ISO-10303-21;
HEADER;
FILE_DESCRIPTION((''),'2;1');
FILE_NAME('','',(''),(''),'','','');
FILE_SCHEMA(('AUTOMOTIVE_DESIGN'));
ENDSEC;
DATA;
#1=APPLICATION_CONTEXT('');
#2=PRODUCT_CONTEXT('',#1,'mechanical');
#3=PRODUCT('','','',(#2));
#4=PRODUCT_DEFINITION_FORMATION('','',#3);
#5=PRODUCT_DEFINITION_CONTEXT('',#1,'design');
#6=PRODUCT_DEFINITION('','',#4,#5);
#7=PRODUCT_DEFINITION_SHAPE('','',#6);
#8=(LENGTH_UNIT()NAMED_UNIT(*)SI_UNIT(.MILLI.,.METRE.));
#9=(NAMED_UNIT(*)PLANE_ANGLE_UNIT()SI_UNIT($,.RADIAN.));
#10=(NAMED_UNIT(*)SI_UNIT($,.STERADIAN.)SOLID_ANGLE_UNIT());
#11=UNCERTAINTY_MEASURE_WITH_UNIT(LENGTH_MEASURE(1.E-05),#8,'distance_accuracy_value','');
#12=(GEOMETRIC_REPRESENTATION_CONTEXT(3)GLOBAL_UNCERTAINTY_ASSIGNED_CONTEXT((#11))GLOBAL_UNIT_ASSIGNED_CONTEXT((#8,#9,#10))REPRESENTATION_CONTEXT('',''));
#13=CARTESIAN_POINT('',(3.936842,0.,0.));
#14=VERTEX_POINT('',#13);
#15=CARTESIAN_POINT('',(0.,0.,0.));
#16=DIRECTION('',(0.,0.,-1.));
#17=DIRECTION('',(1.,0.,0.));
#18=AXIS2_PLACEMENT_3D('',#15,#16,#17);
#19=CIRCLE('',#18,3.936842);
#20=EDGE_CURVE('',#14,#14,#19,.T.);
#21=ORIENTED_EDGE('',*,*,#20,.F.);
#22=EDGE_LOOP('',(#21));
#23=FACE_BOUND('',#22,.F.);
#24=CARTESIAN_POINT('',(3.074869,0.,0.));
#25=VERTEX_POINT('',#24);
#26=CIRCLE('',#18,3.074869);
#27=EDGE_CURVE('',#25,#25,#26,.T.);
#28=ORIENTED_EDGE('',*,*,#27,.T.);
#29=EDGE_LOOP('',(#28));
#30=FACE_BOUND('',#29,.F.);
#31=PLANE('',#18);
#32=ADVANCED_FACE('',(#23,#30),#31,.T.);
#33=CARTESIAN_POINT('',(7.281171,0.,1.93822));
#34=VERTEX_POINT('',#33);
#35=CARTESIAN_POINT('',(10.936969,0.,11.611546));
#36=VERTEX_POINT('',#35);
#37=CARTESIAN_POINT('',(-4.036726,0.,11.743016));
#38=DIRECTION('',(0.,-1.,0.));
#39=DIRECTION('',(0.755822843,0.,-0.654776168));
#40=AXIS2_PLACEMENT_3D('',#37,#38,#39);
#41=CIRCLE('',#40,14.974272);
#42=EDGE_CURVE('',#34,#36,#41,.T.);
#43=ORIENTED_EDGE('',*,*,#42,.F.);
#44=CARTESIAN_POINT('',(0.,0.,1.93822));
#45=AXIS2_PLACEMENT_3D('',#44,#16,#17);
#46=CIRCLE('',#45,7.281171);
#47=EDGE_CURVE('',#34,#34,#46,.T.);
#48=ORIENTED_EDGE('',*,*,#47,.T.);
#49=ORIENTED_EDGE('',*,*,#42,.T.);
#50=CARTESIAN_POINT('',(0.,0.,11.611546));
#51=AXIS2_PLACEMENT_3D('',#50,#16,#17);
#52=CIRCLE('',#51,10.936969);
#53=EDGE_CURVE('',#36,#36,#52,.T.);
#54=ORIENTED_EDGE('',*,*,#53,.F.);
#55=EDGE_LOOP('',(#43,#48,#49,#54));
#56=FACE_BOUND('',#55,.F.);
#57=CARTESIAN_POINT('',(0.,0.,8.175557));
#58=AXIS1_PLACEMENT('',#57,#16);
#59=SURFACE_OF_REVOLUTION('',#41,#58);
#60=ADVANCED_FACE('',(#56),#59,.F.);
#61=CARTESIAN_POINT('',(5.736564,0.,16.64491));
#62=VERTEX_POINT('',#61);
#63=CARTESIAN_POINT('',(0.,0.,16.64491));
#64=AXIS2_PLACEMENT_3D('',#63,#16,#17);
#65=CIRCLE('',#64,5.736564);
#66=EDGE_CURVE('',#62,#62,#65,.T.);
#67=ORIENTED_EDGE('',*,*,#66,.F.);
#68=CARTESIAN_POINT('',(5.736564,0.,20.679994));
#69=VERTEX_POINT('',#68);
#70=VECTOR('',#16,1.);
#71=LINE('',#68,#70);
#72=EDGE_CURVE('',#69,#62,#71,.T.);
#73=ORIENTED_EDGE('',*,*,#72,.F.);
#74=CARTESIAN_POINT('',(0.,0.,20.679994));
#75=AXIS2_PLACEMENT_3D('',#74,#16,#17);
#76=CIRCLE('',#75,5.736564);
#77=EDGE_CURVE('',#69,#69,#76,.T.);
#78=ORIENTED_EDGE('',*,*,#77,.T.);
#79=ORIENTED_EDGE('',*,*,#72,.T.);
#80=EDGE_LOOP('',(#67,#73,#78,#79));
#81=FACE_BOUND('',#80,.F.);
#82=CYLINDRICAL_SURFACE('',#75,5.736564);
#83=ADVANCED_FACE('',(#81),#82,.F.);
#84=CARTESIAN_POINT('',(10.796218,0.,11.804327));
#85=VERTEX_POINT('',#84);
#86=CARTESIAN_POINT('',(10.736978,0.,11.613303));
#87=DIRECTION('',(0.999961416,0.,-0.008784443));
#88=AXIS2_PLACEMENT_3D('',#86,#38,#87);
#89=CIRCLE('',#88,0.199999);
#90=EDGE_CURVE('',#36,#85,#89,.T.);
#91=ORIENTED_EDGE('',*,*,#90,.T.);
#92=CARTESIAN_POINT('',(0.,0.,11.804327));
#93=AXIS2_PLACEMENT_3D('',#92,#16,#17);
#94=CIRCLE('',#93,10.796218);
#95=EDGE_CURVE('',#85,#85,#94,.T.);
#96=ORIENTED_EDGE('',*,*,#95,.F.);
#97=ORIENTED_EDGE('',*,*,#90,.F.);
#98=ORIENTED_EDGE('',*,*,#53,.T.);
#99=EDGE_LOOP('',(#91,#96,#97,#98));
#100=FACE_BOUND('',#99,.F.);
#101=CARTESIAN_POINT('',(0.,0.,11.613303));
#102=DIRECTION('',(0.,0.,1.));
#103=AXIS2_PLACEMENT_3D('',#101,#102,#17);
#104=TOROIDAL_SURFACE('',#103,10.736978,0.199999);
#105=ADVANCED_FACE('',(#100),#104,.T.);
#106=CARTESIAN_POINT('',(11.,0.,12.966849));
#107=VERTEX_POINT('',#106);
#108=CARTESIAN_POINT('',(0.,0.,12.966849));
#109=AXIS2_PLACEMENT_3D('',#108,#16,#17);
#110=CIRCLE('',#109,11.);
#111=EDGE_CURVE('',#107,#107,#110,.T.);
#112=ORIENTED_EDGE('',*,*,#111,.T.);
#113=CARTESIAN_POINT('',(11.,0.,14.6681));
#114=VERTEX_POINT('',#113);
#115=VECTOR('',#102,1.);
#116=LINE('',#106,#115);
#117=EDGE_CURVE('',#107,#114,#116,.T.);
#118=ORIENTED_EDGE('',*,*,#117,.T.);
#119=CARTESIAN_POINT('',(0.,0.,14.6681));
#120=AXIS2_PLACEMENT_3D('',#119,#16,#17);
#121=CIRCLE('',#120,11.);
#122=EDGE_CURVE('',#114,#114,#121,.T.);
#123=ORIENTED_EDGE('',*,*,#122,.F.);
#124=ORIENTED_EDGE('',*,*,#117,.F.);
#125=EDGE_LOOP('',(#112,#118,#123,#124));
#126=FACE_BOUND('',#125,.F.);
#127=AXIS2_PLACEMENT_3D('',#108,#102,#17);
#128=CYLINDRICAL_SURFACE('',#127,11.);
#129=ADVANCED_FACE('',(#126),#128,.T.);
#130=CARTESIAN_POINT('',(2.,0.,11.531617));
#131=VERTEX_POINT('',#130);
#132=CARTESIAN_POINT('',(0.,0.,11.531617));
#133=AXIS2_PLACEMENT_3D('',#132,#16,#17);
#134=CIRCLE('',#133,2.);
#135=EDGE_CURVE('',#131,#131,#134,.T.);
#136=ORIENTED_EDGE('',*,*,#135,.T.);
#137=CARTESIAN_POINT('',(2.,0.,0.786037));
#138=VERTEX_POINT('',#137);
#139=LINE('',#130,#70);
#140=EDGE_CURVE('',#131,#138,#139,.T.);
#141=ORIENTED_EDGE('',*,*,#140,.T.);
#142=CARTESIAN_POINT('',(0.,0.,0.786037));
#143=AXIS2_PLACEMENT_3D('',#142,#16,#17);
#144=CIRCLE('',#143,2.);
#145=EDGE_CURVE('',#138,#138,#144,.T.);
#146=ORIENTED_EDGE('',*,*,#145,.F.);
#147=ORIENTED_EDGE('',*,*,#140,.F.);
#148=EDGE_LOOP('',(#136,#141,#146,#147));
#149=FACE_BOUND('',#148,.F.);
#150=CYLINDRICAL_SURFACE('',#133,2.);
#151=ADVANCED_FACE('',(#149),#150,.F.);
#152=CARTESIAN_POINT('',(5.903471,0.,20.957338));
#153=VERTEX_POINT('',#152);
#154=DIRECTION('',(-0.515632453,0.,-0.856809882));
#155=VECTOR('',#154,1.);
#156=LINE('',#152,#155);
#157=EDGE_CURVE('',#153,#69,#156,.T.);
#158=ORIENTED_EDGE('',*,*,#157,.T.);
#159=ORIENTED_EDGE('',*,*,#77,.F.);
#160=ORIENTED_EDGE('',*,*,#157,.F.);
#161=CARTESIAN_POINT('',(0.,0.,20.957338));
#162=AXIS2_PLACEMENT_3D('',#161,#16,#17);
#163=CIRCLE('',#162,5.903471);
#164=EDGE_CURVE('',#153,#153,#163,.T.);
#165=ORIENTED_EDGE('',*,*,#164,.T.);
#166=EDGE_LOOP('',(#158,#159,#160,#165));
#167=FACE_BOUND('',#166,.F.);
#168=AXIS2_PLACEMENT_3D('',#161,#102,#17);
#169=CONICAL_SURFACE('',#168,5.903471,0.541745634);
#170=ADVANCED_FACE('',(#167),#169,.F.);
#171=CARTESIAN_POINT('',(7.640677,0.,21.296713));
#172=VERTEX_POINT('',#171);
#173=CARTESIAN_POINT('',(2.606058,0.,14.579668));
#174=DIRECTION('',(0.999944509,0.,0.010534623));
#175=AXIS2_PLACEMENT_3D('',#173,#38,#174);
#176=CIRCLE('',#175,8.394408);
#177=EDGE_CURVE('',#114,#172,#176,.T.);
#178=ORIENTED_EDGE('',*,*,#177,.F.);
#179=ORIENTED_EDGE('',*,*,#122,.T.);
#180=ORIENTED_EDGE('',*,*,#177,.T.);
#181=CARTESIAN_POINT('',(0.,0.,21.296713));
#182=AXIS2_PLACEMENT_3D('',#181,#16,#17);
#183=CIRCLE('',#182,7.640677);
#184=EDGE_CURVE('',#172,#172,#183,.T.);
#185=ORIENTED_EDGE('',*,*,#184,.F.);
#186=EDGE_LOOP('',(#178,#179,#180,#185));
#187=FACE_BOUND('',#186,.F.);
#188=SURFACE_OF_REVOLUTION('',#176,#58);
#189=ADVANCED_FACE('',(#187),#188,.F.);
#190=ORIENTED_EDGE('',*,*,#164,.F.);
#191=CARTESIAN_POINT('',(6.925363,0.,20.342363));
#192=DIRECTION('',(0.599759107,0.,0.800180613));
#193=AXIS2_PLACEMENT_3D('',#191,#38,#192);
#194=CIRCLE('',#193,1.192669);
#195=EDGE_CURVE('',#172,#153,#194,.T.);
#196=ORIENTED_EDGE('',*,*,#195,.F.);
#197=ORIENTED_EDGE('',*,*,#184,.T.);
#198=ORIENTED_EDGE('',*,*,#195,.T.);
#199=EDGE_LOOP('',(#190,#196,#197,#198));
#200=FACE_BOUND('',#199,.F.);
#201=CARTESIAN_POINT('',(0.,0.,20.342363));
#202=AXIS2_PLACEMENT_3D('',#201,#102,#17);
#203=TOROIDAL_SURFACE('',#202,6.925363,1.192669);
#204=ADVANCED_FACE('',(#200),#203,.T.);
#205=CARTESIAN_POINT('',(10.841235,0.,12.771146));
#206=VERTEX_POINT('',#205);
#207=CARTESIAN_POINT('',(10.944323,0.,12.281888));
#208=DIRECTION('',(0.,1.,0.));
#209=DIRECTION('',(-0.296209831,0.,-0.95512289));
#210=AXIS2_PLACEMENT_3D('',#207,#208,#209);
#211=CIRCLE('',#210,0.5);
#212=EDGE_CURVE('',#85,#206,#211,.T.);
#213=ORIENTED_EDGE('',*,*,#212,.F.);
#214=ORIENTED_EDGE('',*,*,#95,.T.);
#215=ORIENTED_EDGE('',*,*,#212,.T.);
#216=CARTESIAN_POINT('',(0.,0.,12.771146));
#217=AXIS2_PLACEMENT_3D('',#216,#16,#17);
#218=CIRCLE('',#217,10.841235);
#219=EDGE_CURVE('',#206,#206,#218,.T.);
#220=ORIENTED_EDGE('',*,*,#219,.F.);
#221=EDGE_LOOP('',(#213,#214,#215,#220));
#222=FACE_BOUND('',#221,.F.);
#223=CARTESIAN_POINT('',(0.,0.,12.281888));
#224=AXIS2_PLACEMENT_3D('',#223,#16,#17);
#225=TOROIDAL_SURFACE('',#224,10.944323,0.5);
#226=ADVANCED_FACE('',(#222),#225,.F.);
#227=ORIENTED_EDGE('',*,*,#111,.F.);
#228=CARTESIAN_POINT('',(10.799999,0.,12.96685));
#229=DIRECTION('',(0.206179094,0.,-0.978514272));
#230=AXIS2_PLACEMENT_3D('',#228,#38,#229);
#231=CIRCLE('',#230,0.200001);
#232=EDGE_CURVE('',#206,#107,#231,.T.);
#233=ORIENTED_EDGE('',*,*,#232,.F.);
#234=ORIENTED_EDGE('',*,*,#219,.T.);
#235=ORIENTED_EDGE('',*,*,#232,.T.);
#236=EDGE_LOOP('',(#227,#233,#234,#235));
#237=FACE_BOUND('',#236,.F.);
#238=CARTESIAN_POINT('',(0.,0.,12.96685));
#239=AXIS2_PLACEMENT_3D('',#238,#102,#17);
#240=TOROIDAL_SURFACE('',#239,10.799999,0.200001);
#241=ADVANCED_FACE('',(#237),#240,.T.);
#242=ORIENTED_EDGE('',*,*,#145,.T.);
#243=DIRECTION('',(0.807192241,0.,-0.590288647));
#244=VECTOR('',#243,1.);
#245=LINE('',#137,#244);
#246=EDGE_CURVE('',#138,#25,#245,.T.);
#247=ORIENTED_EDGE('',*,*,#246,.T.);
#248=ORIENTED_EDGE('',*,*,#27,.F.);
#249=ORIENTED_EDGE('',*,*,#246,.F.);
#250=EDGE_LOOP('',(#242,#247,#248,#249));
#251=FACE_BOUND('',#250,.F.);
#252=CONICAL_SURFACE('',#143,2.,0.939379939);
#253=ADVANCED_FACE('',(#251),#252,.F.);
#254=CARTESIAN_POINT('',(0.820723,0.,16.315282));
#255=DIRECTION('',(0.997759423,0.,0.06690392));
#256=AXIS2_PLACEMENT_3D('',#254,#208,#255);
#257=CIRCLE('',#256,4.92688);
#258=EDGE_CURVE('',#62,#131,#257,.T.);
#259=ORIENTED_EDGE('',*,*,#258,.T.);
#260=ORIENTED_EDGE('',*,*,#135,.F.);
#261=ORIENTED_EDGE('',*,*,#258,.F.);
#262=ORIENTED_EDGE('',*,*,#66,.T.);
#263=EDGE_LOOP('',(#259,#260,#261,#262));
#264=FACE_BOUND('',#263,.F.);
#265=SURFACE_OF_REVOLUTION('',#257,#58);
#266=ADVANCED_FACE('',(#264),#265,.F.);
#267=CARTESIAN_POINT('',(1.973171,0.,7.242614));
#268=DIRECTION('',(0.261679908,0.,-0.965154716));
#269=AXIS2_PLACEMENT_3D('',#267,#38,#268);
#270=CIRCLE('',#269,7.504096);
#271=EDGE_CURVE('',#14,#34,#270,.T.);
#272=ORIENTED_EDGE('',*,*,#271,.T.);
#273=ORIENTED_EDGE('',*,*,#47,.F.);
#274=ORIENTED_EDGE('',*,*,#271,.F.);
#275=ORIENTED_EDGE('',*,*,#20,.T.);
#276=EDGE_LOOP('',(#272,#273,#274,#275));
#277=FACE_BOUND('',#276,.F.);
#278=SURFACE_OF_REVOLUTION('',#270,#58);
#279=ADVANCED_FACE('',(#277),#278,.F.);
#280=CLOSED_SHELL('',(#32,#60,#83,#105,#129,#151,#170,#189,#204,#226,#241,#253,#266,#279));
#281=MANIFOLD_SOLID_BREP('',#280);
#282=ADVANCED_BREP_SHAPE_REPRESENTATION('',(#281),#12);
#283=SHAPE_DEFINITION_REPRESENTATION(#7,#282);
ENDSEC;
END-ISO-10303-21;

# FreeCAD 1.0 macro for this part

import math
import FreeCAD as App
import Part
import Sketcher

doc = App.newDocument("Part")
body = doc.addObject("PartDesign::Body", "Body")

# Sketch on XZ plane
sketch1 = doc.addObject("Sketcher::SketchObject", "Sketch")
body.addObject(sketch1)
sketch1.AttachmentSupport = (doc.XZ_Plane, [""])
sketch1.MapMode = "FlatFace"
sketch1.addGeometry(Part.LineSegment(App.Vector(2, 11.531617, 0), App.Vector(2, 0.786037, 0)), False)
sketch1.addGeometry(Part.LineSegment(App.Vector(2, 0.786037, 0), App.Vector(3.074869, 0, 0)), False)
sketch1.addGeometry(Part.LineSegment(App.Vector(3.074869, 0, 0), App.Vector(3.936842, 0, 0)), False)
sketch1.addGeometry(Part.ArcOfCircle(Part.Circle(App.Vector(1.973171, 7.242614, 0), App.Vector(0, 0, 1), 7.504096), math.radians(-74.830235), math.radians(-44.98053)), False)
sketch1.addGeometry(Part.ArcOfCircle(Part.Circle(App.Vector(-4.036726, 11.743016, 0), App.Vector(0, 0, 1), 14.974272), math.radians(-40.90268), math.radians(-0.503049)), False)
sketch1.addGeometry(Part.ArcOfCircle(Part.Circle(App.Vector(10.736978, 11.613303, 0), App.Vector(0, 0, 1), 0.199999), math.radians(-0.503318), math.radians(72.770299)), False)
sketch1.addGeometry(Part.ArcOfCircle(Part.Circle(App.Vector(10.944323, 12.281888, 0), App.Vector(0, 0, 1), 0.5), math.radians(101.89834), math.radians(252.769902)), False)
sketch1.addGeometry(Part.ArcOfCircle(Part.Circle(App.Vector(10.799999, 12.96685, 0), App.Vector(0, 0, 1), 0.200001), math.radians(-78.101469), math.radians(-0.000248)), False)
sketch1.addGeometry(Part.LineSegment(App.Vector(11, 12.966849, 0), App.Vector(11, 14.6681, 0)), False)
sketch1.addGeometry(Part.ArcOfCircle(Part.Circle(App.Vector(2.606058, 14.579668, 0), App.Vector(0, 0, 1), 8.394408), math.radians(0.603601), math.radians(53.147384)), False)
sketch1.addGeometry(Part.ArcOfCircle(Part.Circle(App.Vector(6.925363, 20.342363, 0), App.Vector(0, 0, 1), 1.192669), math.radians(53.147353), math.radians(148.96045)), False)
sketch1.addGeometry(Part.LineSegment(App.Vector(5.903471, 20.957338, 0), App.Vector(5.736564, 20.679994, 0)), False)
sketch1.addGeometry(Part.LineSegment(App.Vector(5.736564, 20.679994, 0), App.Vector(5.736564, 16.64491, 0)), False)
sketch1.addGeometry(Part.ArcOfCircle(Part.Circle(App.Vector(0.820723, 16.315282, 0), App.Vector(0, 0, 1), 4.92688), math.radians(-76.151479), math.radians(3.836178)), False)
sketch1.addConstraint(Sketcher.Constraint("Coincident", 0, 2, 1, 1))
sketch1.addConstraint(Sketcher.Constraint("Coincident", 1, 2, 2, 1))
sketch1.addConstraint(Sketcher.Constraint("Coincident", 2, 2, 3, 1))
sketch1.addConstraint(Sketcher.Constraint("Coincident", 3, 2, 4, 1))
sketch1.addConstraint(Sketcher.Constraint("Coincident", 4, 2, 5, 1))
sketch1.addConstraint(Sketcher.Constraint("Coincident", 5, 2, 6, 2))
sketch1.addConstraint(Sketcher.Constraint("Coincident", 6, 1, 7, 1))
sketch1.addConstraint(Sketcher.Constraint("Coincident", 7, 2, 8, 1))
sketch1.addConstraint(Sketcher.Constraint("Coincident", 8, 2, 9, 1))
sketch1.addConstraint(Sketcher.Constraint("Coincident", 9, 2, 10, 1))
sketch1.addConstraint(Sketcher.Constraint("Coincident", 10, 2, 11, 1))
sketch1.addConstraint(Sketcher.Constraint("Coincident", 11, 2, 12, 1))
sketch1.addConstraint(Sketcher.Constraint("Coincident", 12, 2, 13, 2))
sketch1.addConstraint(Sketcher.Constraint("Coincident", 13, 1, 0, 1))
sketch1.addConstraint(Sketcher.Constraint("Vertical", 0))
sketch1.addConstraint(Sketcher.Constraint("Horizontal", 2))
sketch1.addConstraint(Sketcher.Constraint("Vertical", 8))
sketch1.addConstraint(Sketcher.Constraint("Vertical", 12))
sketch1.addConstraint(Sketcher.Constraint("PointOnObject", 1, 2, -1))
sketch1.addConstraint(Sketcher.Constraint("Radius", 5, 0.199999))
sketch1.addConstraint(Sketcher.Constraint("Radius", 6, 0.5))
sketch1.addConstraint(Sketcher.Constraint("Radius", 7, 0.200001))
sketch1.addConstraint(Sketcher.Constraint("DistanceX", -1, 1, 0, 2, 2.0))
sketch1.addConstraint(Sketcher.Constraint("DistanceX", -1, 1, 7, 2, 11.0))
sketch1.addConstraint(Sketcher.Constraint("Radius", 4, 14.974272))
sketch1.addConstraint(Sketcher.Constraint("Radius", 10, 1.192669))
sketch1.addConstraint(Sketcher.Constraint("Radius", 13, 4.92688))
sketch1.addConstraint(Sketcher.Constraint("Radius", 3, 7.504096))
sketch1.addConstraint(Sketcher.Constraint("Radius", 9, 8.394408))
sketch1.addConstraint(Sketcher.Constraint("DistanceX", 3, 3, 3, 2, 5.308))
sketch1.addConstraint(Sketcher.Constraint("DistanceY", 0, 2, 0, 1, 10.74558))
sketch1.addConstraint(Sketcher.Constraint("DistanceY", 8, 1, 8, 2, 1.701251))
sketch1.addConstraint(Sketcher.Constraint("DistanceY", -1, 1, 8, 2, 14.6681))
sketch1.addConstraint(Sketcher.Constraint("DistanceX", 3, 3, 1, 2, 1.101698))
sketch1.addConstraint(Sketcher.Constraint("DistanceY", 4, 2, 6, 1, 1.1596))
sketch1.addConstraint(Sketcher.Constraint("DistanceX", 11, 2, 10, 3, 1.188799))
sketch1.addConstraint(Sketcher.Constraint("DistanceY", 13, 1, 4, 3, 0.211399))
sketch1.addConstraint(Sketcher.Constraint("DistanceX", 2, 1, 2, 2, 0.861973))
sketch1.addConstraint(Sketcher.Constraint("DistanceY", 12, 2, 12, 1, 4.035084))
sketch1.addConstraint(Sketcher.Constraint("DistanceX", -1, 1, 3, 3, 1.973171))
sketch1.addConstraint(Sketcher.Constraint("DistanceY", -1, 1, 6, 3, 12.281888))
sketch1.addConstraint(Sketcher.Constraint("DistanceY", -1, 1, 7, 3, 12.96685))
sketch1.addConstraint(Sketcher.Constraint("DistanceX", -1, 1, 9, 3, 2.606058))
sketch1.addConstraint(Sketcher.Constraint("DistanceX", -1, 1, 4, 2, 10.936969))
sketch1.addConstraint(Sketcher.Constraint("DistanceX", -1, 1, 5, 2, 10.796218))
sketch1.addConstraint(Sketcher.Constraint("DistanceX", -1, 1, 10, 2, 5.903471))
sketch1.addConstraint(Sketcher.Constraint("DistanceY", -1, 1, 10, 2, 20.957338))
sketch1.addConstraint(Sketcher.Constraint("DistanceY", -1, 1, 12, 2, 16.64491))
sketch1.addConstraint(Sketcher.Constraint("DistanceY", 4, 2, 5, 2, 0.192781))
sketch1.addConstraint(Sketcher.Constraint("DistanceY", 10, 3, 9, 2, 0.95435))
revolution = doc.addObject("PartDesign::Revolution", "Revolution")
body.addObject(revolution)
revolution.Profile = sketch1
revolution.ReferenceAxis = (sketch1, ["V_Axis"])
revolution.Angle = 360

doc.recompute()
